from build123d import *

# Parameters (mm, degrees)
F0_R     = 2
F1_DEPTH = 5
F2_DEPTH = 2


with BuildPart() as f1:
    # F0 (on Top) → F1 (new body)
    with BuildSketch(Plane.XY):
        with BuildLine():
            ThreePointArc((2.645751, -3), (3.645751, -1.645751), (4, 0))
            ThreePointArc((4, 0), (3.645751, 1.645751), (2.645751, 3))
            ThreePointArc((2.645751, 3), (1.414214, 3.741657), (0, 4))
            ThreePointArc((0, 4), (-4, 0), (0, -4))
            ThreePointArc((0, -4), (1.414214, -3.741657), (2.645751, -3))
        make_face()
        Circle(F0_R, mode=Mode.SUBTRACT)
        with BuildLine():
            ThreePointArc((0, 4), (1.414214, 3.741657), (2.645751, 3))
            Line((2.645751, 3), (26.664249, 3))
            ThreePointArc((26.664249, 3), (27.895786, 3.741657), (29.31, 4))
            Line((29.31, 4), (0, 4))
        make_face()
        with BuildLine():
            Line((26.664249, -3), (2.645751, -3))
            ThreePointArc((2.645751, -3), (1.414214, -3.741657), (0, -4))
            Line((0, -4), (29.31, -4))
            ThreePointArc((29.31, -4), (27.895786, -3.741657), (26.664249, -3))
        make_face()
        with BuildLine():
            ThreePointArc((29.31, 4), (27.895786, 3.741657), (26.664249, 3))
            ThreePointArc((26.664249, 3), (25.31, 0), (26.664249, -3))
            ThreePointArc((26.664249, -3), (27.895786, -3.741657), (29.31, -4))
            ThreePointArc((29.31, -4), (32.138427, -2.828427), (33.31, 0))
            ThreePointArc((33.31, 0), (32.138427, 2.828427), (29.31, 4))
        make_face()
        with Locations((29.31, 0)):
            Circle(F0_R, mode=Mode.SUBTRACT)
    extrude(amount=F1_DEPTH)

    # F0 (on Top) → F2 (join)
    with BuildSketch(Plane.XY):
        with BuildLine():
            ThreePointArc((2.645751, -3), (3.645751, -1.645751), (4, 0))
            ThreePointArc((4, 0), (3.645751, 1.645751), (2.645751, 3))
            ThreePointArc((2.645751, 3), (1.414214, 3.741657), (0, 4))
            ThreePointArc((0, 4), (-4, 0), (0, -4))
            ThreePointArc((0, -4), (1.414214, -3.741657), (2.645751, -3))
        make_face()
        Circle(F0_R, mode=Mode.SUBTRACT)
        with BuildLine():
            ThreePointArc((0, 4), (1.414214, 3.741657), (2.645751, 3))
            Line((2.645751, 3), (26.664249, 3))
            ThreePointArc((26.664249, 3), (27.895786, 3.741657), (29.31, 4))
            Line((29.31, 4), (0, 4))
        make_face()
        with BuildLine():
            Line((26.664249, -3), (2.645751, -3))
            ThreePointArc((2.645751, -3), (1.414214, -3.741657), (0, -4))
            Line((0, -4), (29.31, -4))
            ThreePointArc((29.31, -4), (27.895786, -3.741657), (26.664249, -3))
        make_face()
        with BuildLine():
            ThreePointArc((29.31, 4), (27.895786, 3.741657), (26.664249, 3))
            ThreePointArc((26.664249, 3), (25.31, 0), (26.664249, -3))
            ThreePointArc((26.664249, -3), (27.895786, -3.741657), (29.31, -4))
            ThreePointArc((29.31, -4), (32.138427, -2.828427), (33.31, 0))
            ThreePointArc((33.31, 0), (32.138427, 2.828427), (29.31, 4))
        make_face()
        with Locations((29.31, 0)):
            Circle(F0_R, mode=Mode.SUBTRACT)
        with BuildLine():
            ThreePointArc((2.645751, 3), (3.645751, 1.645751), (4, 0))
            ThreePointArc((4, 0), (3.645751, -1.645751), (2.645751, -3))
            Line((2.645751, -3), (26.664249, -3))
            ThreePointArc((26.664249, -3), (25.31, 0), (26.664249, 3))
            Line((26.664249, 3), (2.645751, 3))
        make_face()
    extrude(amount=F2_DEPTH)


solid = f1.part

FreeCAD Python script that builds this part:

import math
import FreeCAD as App
import Part
import Sketcher
from FreeCAD import Vector

doc = App.newDocument("Part")
body = doc.addObject("PartDesign::Body", "Body")

sketch1 = body.newObject("Sketcher::SketchObject", "Sketch")
sketch1.AttachmentSupport = (doc.getObject("XY_Plane"), [""])
sketch1.MapMode = "FlatFace"
sketch1.addGeometry([
    Part.LineSegment(Vector(29.3, 4, 0), Vector(0, 4, 0)),
    Part.ArcOfCircle(Part.Circle(Vector(0, 0, 0), Vector(0, 0, 1), 4), math.radians(90), math.radians(270)),
    Part.LineSegment(Vector(0, -4, 0), Vector(29.3, -4, 0)),
    Part.ArcOfCircle(Part.Circle(Vector(29.3, 0, 0), Vector(0, 0, 1), 4), math.radians(-90), math.radians(0)),
    Part.ArcOfCircle(Part.Circle(Vector(29.3, 0, 0), Vector(0, 0, 1), 4), math.radians(0), math.radians(90)),
    Part.Circle(Vector(0, 0, 0), Vector(0, 0, 1), 2),
    Part.Circle(Vector(29.3, 0, 0), Vector(0, 0, 1), 2),
    Part.ArcOfCircle(Part.Circle(Vector(0, 0, 0), Vector(0, 0, 1), 4), math.radians(-49), math.radians(0)),
    Part.ArcOfCircle(Part.Circle(Vector(0, 0, 0), Vector(0, 0, 1), 4), math.radians(0), math.radians(49)),
    Part.LineSegment(Vector(2.6, 3, 0), Vector(26.7, 3, 0)),
    Part.ArcOfCircle(Part.Circle(Vector(29.3, 0, 0), Vector(0, 0, 1), 4), math.radians(131), math.radians(229)),
    Part.LineSegment(Vector(26.7, -3, 0), Vector(2.6, -3, 0)),
], False)
sketch1.addConstraint([
    Sketcher.Constraint("Tangent", 0, 2, 1, 1),
    Sketcher.Constraint("Tangent", 1, 2, 2, 1),
    Sketcher.Constraint("Tangent", 2, 2, 3, 1),
    Sketcher.Constraint("Tangent", 3, 2, 4, 1),
    Sketcher.Constraint("Tangent", 4, 2, 0, 1),
    Sketcher.Constraint("Tangent", 7, 2, 8, 1),
    Sketcher.Constraint("Coincident", 8, 2, 9, 1),
    Sketcher.Constraint("Coincident", 9, 2, 10, 1),
    Sketcher.Constraint("Coincident", 10, 2, 11, 1),
    Sketcher.Constraint("Coincident", 11, 2, 7, 1),
    Sketcher.Constraint("Horizontal", 0),
    Sketcher.Constraint("Horizontal", 2),
    Sketcher.Constraint("Horizontal", 9),
    Sketcher.Constraint("Horizontal", 11),
    Sketcher.Constraint("Coincident", 1, 3, -1, 1),
    Sketcher.Constraint("Coincident", 5, 3, -1, 1),
    Sketcher.Constraint("Coincident", 7, 3, -1, 1),
    Sketcher.Constraint("Coincident", 6, 3, 3, 3),
    Sketcher.Constraint("Coincident", 10, 3, 3, 3),
    Sketcher.Constraint("Equal", 1, 3),
    Sketcher.Constraint("Equal", 5, 6),
    Sketcher.Constraint("Equal", 7, 8),
    Sketcher.Constraint("Equal", 4, 10),
    Sketcher.Constraint("PointOnObject", 3, 2, -1),
    Sketcher.Constraint("PointOnObject", 7, 2, -1),
    Sketcher.Constraint("Vertical", 9, 2, 10, 2),
    Sketcher.Constraint("Diameter", 5, 4.0),
    Sketcher.Constraint("Radius", 1, 4.0),
    Sketcher.Constraint("DistanceX", -1, 1, 7, 2, 4.0),
    Sketcher.Constraint("DistanceY", -1, 1, 8, 2, 3.0),
    Sketcher.Constraint("DistanceX", 0, 2, 0, 1, 29.31),
])
pad1 = body.newObject("PartDesign::Pad", "Pad")
pad1.Profile = sketch1
pad1.Length = 5

sketch2 = body.newObject("Sketcher::SketchObject", "Sketch001")
sketch2.AttachmentSupport = (doc.getObject("XY_Plane"), [""])
sketch2.MapMode = "FlatFace"
sketch2.addGeometry([
    Part.LineSegment(Vector(29.3, 4, 0), Vector(0, 4, 0)),
    Part.ArcOfCircle(Part.Circle(Vector(0, 0, 0), Vector(0, 0, 1), 4), math.radians(90), math.radians(270)),
    Part.LineSegment(Vector(0, -4, 0), Vector(29.3, -4, 0)),
    Part.ArcOfCircle(Part.Circle(Vector(29.3, 0, 0), Vector(0, 0, 1), 4), math.radians(-90), math.radians(0)),
    Part.ArcOfCircle(Part.Circle(Vector(29.3, 0, 0), Vector(0, 0, 1), 4), math.radians(0), math.radians(90)),
    Part.Circle(Vector(0, 0, 0), Vector(0, 0, 1), 2),
    Part.Circle(Vector(29.3, 0, 0), Vector(0, 0, 1), 2),
], False)
sketch2.addConstraint([
    Sketcher.Constraint("Tangent", 0, 2, 1, 1),
    Sketcher.Constraint("Tangent", 1, 2, 2, 1),
    Sketcher.Constraint("Tangent", 2, 2, 3, 1),
    Sketcher.Constraint("Tangent", 3, 2, 4, 1),
    Sketcher.Constraint("Tangent", 4, 2, 0, 1),
    Sketcher.Constraint("Horizontal", 0),
    Sketcher.Constraint("Horizontal", 2),
    Sketcher.Constraint("Coincident", 1, 3, -1, 1),
    Sketcher.Constraint("Coincident", 5, 3, -1, 1),
    Sketcher.Constraint("Coincident", 6, 3, 3, 3),
    Sketcher.Constraint("Equal", 1, 3),
    Sketcher.Constraint("Equal", 5, 6),
    Sketcher.Constraint("PointOnObject", 3, 2, -1),
    Sketcher.Constraint("Diameter", 5, 4.0),
    Sketcher.Constraint("Radius", 1, 4.0),
    Sketcher.Constraint("DistanceX", 0, 2, 0, 1, 29.31),
])
pad2 = body.newObject("PartDesign::Pad", "Pad001")
pad2.Profile = sketch2
pad2.Length = 2

doc.recompute()
